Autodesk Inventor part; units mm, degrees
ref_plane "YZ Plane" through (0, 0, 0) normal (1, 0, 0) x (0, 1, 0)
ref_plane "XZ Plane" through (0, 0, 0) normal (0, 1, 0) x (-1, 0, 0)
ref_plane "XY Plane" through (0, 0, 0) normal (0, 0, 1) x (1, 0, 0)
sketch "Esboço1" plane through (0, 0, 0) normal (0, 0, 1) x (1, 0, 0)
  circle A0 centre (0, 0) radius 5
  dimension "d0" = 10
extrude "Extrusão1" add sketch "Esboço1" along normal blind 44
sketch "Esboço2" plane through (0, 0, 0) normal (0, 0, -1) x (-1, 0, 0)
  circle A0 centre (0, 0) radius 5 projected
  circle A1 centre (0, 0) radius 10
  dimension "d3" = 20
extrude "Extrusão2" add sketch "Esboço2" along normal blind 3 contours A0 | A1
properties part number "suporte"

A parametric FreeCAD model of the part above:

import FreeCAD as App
import Part
import Sketcher

V = App.Vector

doc = App.newDocument("Part")
body = doc.addObject("PartDesign::Body", "Body")

# Sketch on XY plane
sketch1 = body.newObject("Sketcher::SketchObject", "Sketch")
sketch1.AttachmentSupport = (doc.getObject("XY_Plane"), [""])
sketch1.MapMode = "FlatFace"
sketch1.addGeometry(Part.Circle(V(0, 0, 0), V(0, 0, 1), 5), False)
sketch1.addConstraint([
    Sketcher.Constraint("Coincident", 0, 3, -1, 1),
    Sketcher.Constraint("Diameter", 0, 10.0),
])
pad1 = body.newObject("PartDesign::Pad", "Pad")
pad1.Profile = sketch1
pad1.Length = 44

# Sketch on XY plane
sketch2 = body.newObject("Sketcher::SketchObject", "Sketch001")
sketch2.AttachmentSupport = (doc.getObject("XY_Plane"), [""])
sketch2.MapMode = "FlatFace"
sketch2.addGeometry(Part.Circle(V(0, 0, 0), V(0, 0, 1), 10), False)
sketch2.addConstraint([
    Sketcher.Constraint("Coincident", 0, 3, -1, 1),
    Sketcher.Constraint("Diameter", 0, 20.0),
])
pad2 = body.newObject("PartDesign::Pad", "Pad001")
pad2.Profile = sketch2
pad2.Length = 3
pad2.Reversed = True

doc.recompute()
